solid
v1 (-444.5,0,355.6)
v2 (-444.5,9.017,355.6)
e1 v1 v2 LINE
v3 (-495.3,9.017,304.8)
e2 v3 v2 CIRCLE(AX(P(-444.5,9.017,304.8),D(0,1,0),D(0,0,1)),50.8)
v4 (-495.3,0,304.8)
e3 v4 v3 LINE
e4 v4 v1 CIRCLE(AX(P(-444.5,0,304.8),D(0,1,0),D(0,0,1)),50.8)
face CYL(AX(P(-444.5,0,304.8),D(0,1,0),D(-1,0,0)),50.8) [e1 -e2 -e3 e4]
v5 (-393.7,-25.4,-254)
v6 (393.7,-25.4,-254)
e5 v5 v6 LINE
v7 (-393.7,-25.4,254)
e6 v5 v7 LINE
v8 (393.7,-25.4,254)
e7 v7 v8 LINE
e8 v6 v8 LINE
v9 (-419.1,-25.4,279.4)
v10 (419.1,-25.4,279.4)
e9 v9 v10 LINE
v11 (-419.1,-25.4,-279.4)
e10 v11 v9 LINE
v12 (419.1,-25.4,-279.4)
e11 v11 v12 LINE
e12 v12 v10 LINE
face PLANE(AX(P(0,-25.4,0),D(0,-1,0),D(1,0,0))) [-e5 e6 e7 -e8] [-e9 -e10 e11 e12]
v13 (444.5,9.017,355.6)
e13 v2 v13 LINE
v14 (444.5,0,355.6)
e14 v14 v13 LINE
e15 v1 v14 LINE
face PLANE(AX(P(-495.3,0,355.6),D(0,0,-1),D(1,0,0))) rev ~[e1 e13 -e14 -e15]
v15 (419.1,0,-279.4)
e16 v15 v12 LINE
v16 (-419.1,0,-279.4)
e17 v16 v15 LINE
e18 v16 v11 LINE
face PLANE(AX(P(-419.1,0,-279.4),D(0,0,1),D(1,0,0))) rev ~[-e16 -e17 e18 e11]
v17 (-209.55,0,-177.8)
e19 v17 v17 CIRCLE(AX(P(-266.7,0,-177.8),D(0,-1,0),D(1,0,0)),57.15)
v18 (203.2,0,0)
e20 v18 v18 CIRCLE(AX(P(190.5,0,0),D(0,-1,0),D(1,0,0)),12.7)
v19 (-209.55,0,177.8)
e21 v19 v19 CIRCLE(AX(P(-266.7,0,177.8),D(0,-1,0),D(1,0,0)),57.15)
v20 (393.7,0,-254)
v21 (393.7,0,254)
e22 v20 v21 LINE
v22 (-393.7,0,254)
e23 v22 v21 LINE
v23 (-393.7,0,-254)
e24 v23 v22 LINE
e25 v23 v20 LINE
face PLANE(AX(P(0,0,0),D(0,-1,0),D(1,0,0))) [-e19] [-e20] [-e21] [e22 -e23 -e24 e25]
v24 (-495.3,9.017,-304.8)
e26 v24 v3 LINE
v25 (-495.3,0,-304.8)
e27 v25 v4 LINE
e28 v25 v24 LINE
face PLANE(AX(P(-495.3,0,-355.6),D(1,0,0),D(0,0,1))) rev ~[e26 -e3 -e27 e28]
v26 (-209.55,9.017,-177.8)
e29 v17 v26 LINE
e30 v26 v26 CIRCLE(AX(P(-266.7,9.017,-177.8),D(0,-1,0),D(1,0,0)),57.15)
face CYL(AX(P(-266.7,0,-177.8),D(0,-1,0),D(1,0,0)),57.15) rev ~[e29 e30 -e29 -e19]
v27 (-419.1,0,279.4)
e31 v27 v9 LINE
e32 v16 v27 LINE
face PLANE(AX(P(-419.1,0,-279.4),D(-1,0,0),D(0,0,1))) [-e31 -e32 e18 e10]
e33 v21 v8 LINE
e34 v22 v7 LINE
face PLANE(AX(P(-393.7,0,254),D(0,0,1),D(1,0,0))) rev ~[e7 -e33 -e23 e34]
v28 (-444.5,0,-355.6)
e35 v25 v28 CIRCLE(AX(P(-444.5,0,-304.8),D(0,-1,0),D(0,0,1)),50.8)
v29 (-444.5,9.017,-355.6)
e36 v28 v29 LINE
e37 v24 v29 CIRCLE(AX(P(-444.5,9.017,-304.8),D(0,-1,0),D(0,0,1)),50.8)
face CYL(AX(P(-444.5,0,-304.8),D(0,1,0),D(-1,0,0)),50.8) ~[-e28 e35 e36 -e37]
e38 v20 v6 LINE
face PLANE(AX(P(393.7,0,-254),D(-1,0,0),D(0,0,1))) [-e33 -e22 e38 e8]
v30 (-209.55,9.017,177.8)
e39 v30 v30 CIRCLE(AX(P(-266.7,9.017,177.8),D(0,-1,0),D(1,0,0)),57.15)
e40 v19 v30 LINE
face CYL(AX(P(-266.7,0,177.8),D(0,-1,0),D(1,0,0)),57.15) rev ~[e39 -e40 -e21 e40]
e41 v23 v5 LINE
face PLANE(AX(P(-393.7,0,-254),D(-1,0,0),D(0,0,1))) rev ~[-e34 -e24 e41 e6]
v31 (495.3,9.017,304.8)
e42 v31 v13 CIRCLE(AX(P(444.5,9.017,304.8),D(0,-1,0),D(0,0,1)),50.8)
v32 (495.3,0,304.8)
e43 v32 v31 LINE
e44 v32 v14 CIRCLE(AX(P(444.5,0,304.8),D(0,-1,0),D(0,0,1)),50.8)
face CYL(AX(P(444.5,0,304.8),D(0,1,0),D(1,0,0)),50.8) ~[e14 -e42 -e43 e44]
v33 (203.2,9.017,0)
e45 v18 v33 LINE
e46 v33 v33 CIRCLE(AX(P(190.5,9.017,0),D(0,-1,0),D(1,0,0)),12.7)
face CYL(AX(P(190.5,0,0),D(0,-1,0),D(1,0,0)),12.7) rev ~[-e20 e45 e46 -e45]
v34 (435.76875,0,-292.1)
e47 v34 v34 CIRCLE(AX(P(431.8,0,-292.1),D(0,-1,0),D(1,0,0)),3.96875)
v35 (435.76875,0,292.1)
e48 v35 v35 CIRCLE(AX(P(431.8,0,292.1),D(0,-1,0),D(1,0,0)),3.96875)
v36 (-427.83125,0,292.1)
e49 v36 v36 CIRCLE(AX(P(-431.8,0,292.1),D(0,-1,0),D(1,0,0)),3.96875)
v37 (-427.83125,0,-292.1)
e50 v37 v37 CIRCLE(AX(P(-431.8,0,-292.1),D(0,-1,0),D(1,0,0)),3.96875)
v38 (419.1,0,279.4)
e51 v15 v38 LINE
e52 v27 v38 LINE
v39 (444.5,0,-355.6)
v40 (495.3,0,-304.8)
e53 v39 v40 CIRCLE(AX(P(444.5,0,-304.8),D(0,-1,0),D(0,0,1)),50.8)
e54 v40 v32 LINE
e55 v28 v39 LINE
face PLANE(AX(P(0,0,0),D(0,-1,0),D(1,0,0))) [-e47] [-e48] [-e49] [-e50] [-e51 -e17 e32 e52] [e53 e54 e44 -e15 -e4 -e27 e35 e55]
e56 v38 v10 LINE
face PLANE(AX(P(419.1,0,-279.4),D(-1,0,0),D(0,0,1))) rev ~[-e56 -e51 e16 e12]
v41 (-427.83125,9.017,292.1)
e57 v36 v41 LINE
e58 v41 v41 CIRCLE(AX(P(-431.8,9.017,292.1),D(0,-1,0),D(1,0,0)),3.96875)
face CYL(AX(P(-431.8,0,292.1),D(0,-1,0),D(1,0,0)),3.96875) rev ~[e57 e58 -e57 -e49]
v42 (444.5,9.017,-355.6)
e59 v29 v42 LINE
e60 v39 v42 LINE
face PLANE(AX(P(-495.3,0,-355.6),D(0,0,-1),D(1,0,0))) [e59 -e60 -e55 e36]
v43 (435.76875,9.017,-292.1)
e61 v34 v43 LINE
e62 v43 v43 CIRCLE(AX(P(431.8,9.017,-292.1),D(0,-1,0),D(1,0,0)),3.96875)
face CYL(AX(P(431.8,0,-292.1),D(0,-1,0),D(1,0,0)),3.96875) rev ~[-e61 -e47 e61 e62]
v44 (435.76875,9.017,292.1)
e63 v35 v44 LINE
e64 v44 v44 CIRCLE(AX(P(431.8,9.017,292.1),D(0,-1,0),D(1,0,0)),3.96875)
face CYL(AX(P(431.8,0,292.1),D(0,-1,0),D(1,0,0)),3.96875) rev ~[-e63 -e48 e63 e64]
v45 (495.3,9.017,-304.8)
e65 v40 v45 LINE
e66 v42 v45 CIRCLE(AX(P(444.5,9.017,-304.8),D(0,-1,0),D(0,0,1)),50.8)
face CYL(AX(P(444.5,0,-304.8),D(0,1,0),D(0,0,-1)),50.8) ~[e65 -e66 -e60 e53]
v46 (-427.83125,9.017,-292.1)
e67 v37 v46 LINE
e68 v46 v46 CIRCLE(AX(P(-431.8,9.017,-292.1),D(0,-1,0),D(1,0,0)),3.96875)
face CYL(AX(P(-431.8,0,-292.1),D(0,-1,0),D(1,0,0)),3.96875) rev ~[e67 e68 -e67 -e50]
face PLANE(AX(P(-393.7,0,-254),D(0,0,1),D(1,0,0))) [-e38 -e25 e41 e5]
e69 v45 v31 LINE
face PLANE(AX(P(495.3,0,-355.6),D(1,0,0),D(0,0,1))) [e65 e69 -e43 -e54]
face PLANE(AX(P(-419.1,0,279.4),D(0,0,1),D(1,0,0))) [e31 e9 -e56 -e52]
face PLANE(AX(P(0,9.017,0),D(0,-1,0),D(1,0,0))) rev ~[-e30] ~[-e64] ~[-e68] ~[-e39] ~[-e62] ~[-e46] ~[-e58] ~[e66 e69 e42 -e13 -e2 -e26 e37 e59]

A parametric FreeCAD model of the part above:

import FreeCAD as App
import Part
import Sketcher
Q = App.Units.Quantity


def edges_at(feature, points):
    """Names of the edges that pass closest to the given points."""
    edges = feature.Shape.Edges
    near = lambda p: min(range(len(edges)), key=lambda i: edges[i].distToShape(Part.Vertex(*p))[0])
    return sorted({f"Edge{near(p) + 1}" for p in points})


def add_polygon(sketch, points):
    """Adds a closed chain of lines whose ends are joined by coincident constraints."""
    first, n = sketch.GeometryCount, len(points)
    for a, b in zip(points, points[1:] + points[:1]):
        sketch.addGeometry(Part.LineSegment(App.Vector(*a, 0), App.Vector(*b, 0)), False)
    for i in range(n):
        sketch.addConstraint(Sketcher.Constraint("Coincident", first + i, 2, first + (i + 1) % n, 1))

doc = App.newDocument("Part")
body = doc.addObject("PartDesign::Body", "Body")

# Sketch on XZ plane
sketch1 = body.newObject("Sketcher::SketchObject", "Sketch")
sketch1.AttachmentSupport = (doc.getObject("XZ_Plane"), [""])
sketch1.MapMode = "FlatFace"
add_polygon(sketch1, [(-495.3, 355.6), (-495.3, -355.6), (495.3, -355.6), (495.3, 355.6)])  # lines 0-3
sketch1.addConstraint([
    Sketcher.Constraint("Vertical", 0),
    Sketcher.Constraint("Horizontal", 1),
    Sketcher.Constraint("Vertical", 2),
    Sketcher.Constraint("Horizontal", 3),
    Sketcher.Constraint("Symmetric", 0, 2, 2, 2, -1, 1),
    Sketcher.Constraint("DistanceX", 1, 1, 1, 2, Q("39 in")),
    Sketcher.Constraint("DistanceY", 0, 2, 0, 1, Q("28 in")),
])
pad1 = body.newObject("PartDesign::Pad", "Pad")
pad1.Profile = sketch1
pad1.Length = Q("0.355 in")
pad1.Reversed = True
doc.recompute()

fillet = body.newObject("PartDesign::Fillet", "Fillet")
fillet.Base = (pad1, edges_at(pad1, [
    (495.3, 4.508, 355.6),
    (495.3, 4.508, -355.6),
    (-495.3, 4.508, -355.6),
    (-495.3, 4.508, 355.6),
]))
fillet.Radius = Q("2 in")

# Sketch on XZ plane
sketch2 = body.newObject("Sketcher::SketchObject", "Sketch001")
sketch2.AttachmentSupport = (doc.getObject("XZ_Plane"), [""])
sketch2.MapMode = "FlatFace"
sketch2.addGeometry([
    Part.Circle(App.Vector(-431.8, 292.1, 0), App.Vector(0, 0, 1), 3.96875),
    Part.Circle(App.Vector(431.8, 292.1, 0), App.Vector(0, 0, 1), 3.96875),
    Part.Circle(App.Vector(431.8, -292.1, 0), App.Vector(0, 0, 1), 3.96875),
    Part.Circle(App.Vector(-431.8, -292.1, 0), App.Vector(0, 0, 1), 3.96875),
], False)
sketch2.addConstraint([
    Sketcher.Constraint("Equal", 0, 1),
    Sketcher.Constraint("Equal", 1, 2),
    Sketcher.Constraint("Equal", 2, 3),
    Sketcher.Constraint("Symmetric", 0, 3, 2, 3, -1, 1),
    Sketcher.Constraint("Symmetric", 1, 3, 3, 3, -1, 1),
    Sketcher.Constraint("Symmetric", 0, 3, 1, 3, -2),
    Sketcher.Constraint("Diameter", 0, Q("0.3125 in")),
    Sketcher.Constraint("DistanceX", 0, 3, -1, 1, Q("17 in")),
    Sketcher.Constraint("DistanceY", 2, 3, 1, 3, Q("23 in")),
])
pocket1 = body.newObject("PartDesign::Pocket", "Pocket")
pocket1.Profile = sketch2
pocket1.Type = "ThroughAll"

# Sketch on XZ plane
sketch3 = body.newObject("Sketcher::SketchObject", "Sketch002")
sketch3.AttachmentSupport = (doc.getObject("XZ_Plane"), [""])
sketch3.MapMode = "FlatFace"
sketch3.addGeometry(Part.Circle(App.Vector(190.5, 0, 0), App.Vector(0, 0, 1), 12.7), False)
sketch3.addConstraint([
    Sketcher.Constraint("PointOnObject", 0, 3, -1),
    Sketcher.Constraint("Diameter", 0, Q("1 in")),
    Sketcher.Constraint("DistanceX", -1, 1, 0, 3, Q("7.5 in")),
])
pocket2 = body.newObject("PartDesign::Pocket", "Pocket001")
pocket2.Profile = sketch3
pocket2.Type = "ThroughAll"

# Sketch on XZ plane
sketch4 = body.newObject("Sketcher::SketchObject", "Sketch003")
sketch4.AttachmentSupport = (doc.getObject("XZ_Plane"), [""])
sketch4.MapMode = "FlatFace"
add_polygon(sketch4, [(-419.1, 279.4), (-419.1, -279.4), (419.1, -279.4), (419.1, 279.4)])  # lines 0-3
add_polygon(sketch4, [(393.7, -254), (-393.7, -254), (-393.7, 254), (393.7, 254)])  # lines 4-7
sketch4.addConstraint([
    Sketcher.Constraint("Vertical", 0),
    Sketcher.Constraint("Horizontal", 1),
    Sketcher.Constraint("Vertical", 2),
    Sketcher.Constraint("Horizontal", 3),
    Sketcher.Constraint("Horizontal", 4),
    Sketcher.Constraint("Vertical", 5),
    Sketcher.Constraint("Horizontal", 6),
    Sketcher.Constraint("Vertical", 7),
    Sketcher.Constraint("Symmetric", 0, 2, 2, 2, -1, 1),
    Sketcher.Constraint("Symmetric", 4, 2, 6, 2, -1, 1),
    Sketcher.Constraint("DistanceX", 1, 1, 1, 2, Q("33 in")),
    Sketcher.Constraint("DistanceX", 4, 2, 4, 1, Q("31 in")),
    Sketcher.Constraint("DistanceY", 0, 2, 0, 1, Q("22 in")),
    Sketcher.Constraint("DistanceY", 5, 1, 5, 2, Q("20 in")),
])
pad2 = body.newObject("PartDesign::Pad", "Pad001")
pad2.Profile = sketch4
pad2.Length = Q("1 in")

# Sketch on XZ plane
sketch5 = body.newObject("Sketcher::SketchObject", "Sketch004")
sketch5.AttachmentSupport = (doc.getObject("XZ_Plane"), [""])
sketch5.MapMode = "FlatFace"
sketch5.addGeometry([
    Part.Circle(App.Vector(-266.7, 177.8, 0), App.Vector(0, 0, 1), 57.15),
    Part.Circle(App.Vector(-266.7, -177.8, 0), App.Vector(0, 0, 1), 57.15),
], False)
sketch5.addConstraint([
    Sketcher.Constraint("Equal", 0, 1),
    Sketcher.Constraint("Symmetric", 0, 3, 1, 3, -1),
    Sketcher.Constraint("Diameter", 0, Q("4.5 in")),
    Sketcher.Constraint("DistanceY", -1, 1, 0, 3, Q("7 in")),
    Sketcher.Constraint("DistanceX", 0, 3, -1, 1, Q("10.5 in")),
])
pocket3 = body.newObject("PartDesign::Pocket", "Pocket002")
pocket3.Profile = sketch5
pocket3.Type = "ThroughAll"

doc.recompute()
